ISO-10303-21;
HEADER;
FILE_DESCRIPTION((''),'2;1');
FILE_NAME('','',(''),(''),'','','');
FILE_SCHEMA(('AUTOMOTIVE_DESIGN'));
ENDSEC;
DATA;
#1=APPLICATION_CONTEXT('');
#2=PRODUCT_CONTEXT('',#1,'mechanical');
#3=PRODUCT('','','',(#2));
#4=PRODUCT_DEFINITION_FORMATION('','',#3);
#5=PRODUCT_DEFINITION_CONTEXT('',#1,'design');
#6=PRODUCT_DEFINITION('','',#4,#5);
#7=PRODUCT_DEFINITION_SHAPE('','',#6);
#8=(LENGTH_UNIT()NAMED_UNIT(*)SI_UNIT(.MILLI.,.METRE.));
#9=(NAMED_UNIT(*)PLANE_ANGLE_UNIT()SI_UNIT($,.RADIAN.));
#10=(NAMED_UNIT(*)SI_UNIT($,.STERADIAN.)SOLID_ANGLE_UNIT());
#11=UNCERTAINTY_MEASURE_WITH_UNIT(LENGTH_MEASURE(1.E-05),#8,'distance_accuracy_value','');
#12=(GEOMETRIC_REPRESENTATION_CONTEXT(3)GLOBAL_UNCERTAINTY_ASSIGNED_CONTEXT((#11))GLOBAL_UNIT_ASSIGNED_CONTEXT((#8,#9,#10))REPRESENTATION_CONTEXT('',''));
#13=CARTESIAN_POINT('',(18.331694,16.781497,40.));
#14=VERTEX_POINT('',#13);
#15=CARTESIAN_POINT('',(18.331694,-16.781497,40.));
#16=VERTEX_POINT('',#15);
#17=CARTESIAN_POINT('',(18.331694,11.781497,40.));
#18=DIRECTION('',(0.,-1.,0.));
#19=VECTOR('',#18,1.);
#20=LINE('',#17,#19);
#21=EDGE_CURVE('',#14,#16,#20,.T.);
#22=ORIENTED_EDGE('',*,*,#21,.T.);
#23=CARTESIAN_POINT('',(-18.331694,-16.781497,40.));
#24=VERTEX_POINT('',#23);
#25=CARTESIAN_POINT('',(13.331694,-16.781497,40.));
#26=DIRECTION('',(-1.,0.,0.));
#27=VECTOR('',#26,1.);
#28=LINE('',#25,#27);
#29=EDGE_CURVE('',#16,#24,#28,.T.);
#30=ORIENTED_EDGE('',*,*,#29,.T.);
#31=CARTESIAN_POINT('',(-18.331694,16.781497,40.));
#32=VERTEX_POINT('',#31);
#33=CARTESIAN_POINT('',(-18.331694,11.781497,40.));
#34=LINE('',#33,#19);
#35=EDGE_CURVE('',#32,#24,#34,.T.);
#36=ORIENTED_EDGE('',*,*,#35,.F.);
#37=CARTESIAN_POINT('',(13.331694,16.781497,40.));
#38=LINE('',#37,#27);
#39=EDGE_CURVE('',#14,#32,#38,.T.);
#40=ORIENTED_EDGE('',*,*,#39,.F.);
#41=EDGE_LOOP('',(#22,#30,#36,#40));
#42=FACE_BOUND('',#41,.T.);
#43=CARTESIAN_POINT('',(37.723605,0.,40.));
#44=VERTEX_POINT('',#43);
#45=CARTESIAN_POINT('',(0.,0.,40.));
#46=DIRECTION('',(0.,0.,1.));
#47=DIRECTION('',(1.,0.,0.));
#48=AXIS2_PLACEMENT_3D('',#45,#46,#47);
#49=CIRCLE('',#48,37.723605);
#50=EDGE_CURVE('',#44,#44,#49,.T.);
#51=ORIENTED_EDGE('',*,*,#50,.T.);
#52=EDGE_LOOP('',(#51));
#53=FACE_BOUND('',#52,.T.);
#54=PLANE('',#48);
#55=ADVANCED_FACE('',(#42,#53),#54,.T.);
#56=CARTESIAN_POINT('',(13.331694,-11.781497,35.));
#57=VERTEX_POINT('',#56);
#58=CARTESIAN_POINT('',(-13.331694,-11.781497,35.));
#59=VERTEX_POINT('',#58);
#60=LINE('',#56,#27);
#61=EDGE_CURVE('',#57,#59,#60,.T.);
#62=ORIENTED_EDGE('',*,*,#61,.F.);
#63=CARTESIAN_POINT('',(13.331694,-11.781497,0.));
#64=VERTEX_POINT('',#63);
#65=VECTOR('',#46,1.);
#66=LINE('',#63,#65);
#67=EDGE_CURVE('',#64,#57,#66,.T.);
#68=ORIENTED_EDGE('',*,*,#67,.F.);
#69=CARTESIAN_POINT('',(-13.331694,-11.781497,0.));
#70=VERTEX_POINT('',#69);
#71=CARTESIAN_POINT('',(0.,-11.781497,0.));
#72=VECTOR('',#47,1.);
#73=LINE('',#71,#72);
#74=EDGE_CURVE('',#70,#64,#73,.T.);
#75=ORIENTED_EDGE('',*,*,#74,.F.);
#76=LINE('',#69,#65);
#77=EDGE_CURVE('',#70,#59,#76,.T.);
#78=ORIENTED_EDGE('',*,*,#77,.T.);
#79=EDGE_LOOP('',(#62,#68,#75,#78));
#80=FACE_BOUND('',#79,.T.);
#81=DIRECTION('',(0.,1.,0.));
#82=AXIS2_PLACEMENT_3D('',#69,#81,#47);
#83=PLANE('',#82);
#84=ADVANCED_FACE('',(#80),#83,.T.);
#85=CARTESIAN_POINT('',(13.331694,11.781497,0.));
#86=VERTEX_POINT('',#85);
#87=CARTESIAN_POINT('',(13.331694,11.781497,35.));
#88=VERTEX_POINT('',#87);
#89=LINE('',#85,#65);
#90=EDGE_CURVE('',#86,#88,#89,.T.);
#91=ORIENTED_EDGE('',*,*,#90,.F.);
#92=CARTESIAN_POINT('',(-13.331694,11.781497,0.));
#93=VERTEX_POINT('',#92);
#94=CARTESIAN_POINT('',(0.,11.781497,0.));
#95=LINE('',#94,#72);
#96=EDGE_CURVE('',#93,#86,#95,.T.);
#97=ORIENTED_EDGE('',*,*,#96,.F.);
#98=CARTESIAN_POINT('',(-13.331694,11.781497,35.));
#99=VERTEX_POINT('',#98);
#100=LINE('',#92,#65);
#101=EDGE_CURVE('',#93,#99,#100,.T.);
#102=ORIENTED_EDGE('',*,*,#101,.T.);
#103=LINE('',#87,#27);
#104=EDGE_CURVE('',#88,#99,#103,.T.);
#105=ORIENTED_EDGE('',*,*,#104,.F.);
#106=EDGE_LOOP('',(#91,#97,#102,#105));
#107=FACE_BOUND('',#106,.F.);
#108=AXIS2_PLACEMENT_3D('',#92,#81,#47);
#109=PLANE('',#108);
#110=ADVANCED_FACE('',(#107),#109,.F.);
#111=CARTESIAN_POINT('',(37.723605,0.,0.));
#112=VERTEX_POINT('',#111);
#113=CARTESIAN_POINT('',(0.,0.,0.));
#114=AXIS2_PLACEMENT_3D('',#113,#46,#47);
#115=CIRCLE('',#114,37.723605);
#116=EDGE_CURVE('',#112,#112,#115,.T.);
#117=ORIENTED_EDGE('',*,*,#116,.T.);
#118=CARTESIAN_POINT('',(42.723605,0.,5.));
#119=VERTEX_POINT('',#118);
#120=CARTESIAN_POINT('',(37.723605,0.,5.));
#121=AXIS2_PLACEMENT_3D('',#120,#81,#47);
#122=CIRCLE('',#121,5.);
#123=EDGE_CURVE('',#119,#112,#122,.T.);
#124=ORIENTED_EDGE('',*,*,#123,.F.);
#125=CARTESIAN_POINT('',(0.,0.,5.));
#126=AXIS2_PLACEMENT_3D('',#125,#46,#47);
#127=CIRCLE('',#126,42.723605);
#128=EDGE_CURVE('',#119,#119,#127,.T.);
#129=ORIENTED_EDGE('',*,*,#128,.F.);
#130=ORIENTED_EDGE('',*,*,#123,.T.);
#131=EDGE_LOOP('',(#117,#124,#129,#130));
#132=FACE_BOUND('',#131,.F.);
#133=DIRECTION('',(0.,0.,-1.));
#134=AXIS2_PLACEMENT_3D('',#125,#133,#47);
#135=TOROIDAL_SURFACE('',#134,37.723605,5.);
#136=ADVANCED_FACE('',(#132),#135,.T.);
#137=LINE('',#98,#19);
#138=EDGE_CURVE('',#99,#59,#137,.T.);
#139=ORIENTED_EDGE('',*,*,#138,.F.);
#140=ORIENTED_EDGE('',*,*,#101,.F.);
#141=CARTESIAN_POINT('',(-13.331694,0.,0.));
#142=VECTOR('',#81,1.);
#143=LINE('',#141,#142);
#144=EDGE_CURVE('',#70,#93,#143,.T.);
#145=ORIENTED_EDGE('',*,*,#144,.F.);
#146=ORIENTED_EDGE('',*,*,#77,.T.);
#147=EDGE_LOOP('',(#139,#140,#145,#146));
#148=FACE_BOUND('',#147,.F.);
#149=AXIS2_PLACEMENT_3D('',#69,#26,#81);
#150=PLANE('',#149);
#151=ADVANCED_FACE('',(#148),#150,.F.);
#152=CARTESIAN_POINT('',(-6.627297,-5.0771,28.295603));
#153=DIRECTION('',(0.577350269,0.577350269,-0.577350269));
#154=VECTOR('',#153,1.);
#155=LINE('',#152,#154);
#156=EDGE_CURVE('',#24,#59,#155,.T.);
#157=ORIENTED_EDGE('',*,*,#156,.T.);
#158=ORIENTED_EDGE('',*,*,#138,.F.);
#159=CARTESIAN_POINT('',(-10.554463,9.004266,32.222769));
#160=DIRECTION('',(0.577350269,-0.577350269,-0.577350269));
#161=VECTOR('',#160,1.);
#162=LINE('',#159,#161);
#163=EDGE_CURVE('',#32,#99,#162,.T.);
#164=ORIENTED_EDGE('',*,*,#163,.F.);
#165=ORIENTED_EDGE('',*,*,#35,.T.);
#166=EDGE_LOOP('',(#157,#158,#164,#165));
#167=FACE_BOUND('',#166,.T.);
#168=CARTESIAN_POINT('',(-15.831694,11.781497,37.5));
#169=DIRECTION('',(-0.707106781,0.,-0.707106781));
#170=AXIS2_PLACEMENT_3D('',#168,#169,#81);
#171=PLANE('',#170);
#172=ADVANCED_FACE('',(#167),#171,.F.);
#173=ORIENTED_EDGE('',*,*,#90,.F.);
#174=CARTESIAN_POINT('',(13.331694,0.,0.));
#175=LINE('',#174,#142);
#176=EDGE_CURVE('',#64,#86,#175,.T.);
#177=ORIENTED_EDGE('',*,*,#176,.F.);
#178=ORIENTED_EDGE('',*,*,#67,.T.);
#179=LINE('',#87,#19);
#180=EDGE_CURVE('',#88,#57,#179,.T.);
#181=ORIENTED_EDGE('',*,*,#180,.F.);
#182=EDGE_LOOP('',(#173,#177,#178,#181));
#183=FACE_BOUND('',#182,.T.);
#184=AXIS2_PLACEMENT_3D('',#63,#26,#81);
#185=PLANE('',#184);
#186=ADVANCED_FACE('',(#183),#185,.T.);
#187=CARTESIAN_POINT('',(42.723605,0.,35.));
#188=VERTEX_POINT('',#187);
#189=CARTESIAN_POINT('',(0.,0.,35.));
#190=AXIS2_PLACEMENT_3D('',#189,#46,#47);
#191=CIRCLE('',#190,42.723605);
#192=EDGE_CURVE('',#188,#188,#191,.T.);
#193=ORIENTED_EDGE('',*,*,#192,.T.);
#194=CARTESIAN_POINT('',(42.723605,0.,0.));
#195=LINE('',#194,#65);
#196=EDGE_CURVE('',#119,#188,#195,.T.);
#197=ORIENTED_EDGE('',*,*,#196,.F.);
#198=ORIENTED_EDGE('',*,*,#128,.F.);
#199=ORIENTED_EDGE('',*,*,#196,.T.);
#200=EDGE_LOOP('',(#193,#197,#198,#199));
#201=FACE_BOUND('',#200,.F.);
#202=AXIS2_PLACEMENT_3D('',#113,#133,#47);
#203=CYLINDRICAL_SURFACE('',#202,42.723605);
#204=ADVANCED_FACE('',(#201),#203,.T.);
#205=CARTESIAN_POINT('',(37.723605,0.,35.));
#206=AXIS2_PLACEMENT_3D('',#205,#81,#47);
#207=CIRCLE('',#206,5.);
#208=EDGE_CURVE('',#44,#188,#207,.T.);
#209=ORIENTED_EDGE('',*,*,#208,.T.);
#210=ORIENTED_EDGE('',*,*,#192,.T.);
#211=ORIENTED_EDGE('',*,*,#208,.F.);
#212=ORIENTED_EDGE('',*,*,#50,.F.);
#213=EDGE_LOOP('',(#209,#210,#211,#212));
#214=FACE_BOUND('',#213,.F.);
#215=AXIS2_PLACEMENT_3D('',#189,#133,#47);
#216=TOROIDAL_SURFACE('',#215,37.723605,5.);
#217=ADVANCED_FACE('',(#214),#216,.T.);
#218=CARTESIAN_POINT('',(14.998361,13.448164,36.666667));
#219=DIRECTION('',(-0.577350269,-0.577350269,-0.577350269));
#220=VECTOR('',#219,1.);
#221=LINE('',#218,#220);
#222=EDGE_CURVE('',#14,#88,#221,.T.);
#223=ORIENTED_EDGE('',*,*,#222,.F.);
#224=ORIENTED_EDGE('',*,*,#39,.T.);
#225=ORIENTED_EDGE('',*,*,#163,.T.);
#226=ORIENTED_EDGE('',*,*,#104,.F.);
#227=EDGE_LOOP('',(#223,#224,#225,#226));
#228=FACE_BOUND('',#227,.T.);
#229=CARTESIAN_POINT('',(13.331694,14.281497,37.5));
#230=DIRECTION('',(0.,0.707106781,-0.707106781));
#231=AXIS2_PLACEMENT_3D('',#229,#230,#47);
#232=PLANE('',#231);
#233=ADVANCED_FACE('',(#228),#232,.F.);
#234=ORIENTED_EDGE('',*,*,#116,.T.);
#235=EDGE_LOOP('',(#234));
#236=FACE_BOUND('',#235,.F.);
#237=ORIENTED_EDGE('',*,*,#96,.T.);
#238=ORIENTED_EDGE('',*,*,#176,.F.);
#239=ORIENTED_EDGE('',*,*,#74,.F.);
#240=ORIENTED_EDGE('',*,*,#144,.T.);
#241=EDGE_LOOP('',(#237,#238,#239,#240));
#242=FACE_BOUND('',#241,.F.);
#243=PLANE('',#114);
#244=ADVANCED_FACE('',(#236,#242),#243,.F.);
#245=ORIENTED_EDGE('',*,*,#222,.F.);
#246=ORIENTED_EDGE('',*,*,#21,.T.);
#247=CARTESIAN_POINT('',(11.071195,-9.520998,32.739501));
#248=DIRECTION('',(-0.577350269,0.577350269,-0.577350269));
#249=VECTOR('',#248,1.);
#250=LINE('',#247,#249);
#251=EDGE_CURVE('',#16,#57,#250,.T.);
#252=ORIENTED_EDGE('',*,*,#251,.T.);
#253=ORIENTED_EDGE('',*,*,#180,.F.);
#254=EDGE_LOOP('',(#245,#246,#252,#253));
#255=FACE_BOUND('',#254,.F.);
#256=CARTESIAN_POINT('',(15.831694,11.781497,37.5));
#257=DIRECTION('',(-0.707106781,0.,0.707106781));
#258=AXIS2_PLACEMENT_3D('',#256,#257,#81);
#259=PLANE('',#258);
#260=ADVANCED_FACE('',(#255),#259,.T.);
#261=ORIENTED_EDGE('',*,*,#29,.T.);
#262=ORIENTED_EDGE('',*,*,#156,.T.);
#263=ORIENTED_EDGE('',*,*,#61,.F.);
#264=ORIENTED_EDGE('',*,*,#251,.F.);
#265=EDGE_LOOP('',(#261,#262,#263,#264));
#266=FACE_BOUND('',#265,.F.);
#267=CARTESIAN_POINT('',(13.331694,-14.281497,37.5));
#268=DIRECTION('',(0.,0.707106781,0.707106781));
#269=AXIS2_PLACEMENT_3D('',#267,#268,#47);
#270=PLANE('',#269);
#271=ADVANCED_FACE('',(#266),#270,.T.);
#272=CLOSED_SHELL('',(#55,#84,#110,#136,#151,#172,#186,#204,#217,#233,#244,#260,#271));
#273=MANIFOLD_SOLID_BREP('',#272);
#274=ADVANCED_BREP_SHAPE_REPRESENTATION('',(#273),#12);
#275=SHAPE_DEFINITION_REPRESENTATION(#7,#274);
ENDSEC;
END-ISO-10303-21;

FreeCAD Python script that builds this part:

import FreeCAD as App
import Part
import Sketcher

V = App.Vector
Q = App.Units.Quantity


def edges_at(feature, points):
    """Names of the edges that pass closest to the given points."""
    edges = feature.Shape.Edges
    near = lambda p: min(range(len(edges)), key=lambda i: edges[i].distToShape(Part.Vertex(*p))[0])
    return sorted({f"Edge{near(p) + 1}" for p in points})

doc = App.newDocument("Part")
body = doc.addObject("PartDesign::Body", "Body")

sketch1 = body.newObject("Sketcher::SketchObject", "Sketch")
sketch1.AttachmentSupport = (doc.getObject("XY_Plane"), [""])
sketch1.MapMode = "FlatFace"
sketch1.addGeometry(Part.Circle(V(0, 0, 0), V(0, 0, 1), 43), False)
sketch1.addConstraint(Sketcher.Constraint("Coincident", 0, 3, -1, 1))
sketch1.addConstraint(Sketcher.Constraint("Diameter", 0, Q("85.44721 mm")))
pad1 = body.newObject("PartDesign::Pad", "Pad")
pad1.Profile = sketch1
pad1.Length = 40

sketch2 = body.newObject("Sketcher::SketchObject", "Sketch001")
sketch2.AttachmentSupport = (doc.getObject("XY_Plane"), [""])
sketch2.MapMode = "FlatFace"
sketch2.addGeometry(Part.LineSegment(V(-13, 12, 0), V(-13, -12, 0)), False)
sketch2.addGeometry(Part.LineSegment(V(-13, -12, 0), V(13, -12, 0)), False)
sketch2.addGeometry(Part.LineSegment(V(13, -12, 0), V(13, 12, 0)), False)
sketch2.addGeometry(Part.LineSegment(V(13, 12, 0), V(-13, 12, 0)), False)
sketch2.addConstraint(Sketcher.Constraint("Coincident", 0, 2, 1, 1))
sketch2.addConstraint(Sketcher.Constraint("Coincident", 1, 2, 2, 1))
sketch2.addConstraint(Sketcher.Constraint("Coincident", 2, 2, 3, 1))
sketch2.addConstraint(Sketcher.Constraint("Coincident", 3, 2, 0, 1))
sketch2.addConstraint(Sketcher.Constraint("Vertical", 0))
sketch2.addConstraint(Sketcher.Constraint("Horizontal", 1))
sketch2.addConstraint(Sketcher.Constraint("Vertical", 2))
sketch2.addConstraint(Sketcher.Constraint("Horizontal", 3))
sketch2.addConstraint(Sketcher.Constraint("Symmetric", 0, 2, 2, 2, -1, 1))
sketch2.addConstraint(Sketcher.Constraint("DistanceX", 1, 1, 1, 2, Q("26.663388 mm")))
sketch2.addConstraint(Sketcher.Constraint("DistanceY", 0, 2, 0, 1, Q("23.562994 mm")))
pocket1 = body.newObject("PartDesign::Pocket", "Pocket")
pocket1.Profile = sketch2
pocket1.Type = "ThroughAll"
pocket1.Reversed = True
doc.recompute()

chamfer = body.newObject("PartDesign::Chamfer", "Chamfer")
chamfer.Base = (pocket1, edges_at(pocket1, [
    (0, 11.781, 40),
    (13.332, 0, 40),
    (-13.332, 0, 40),
    (0, -11.781, 40),
]))
chamfer.Size = 5
doc.recompute()

fillet = body.newObject("PartDesign::Fillet", "Fillet")
fillet.Base = (chamfer, edges_at(chamfer, [(-42.724, 0, 40)]))
fillet.Radius = 5
doc.recompute()

fillet2 = body.newObject("PartDesign::Fillet", "Fillet001")
fillet2.Base = (fillet, edges_at(fillet, [(-42.724, 0, 0)]))
fillet2.Radius = 5

doc.recompute()
